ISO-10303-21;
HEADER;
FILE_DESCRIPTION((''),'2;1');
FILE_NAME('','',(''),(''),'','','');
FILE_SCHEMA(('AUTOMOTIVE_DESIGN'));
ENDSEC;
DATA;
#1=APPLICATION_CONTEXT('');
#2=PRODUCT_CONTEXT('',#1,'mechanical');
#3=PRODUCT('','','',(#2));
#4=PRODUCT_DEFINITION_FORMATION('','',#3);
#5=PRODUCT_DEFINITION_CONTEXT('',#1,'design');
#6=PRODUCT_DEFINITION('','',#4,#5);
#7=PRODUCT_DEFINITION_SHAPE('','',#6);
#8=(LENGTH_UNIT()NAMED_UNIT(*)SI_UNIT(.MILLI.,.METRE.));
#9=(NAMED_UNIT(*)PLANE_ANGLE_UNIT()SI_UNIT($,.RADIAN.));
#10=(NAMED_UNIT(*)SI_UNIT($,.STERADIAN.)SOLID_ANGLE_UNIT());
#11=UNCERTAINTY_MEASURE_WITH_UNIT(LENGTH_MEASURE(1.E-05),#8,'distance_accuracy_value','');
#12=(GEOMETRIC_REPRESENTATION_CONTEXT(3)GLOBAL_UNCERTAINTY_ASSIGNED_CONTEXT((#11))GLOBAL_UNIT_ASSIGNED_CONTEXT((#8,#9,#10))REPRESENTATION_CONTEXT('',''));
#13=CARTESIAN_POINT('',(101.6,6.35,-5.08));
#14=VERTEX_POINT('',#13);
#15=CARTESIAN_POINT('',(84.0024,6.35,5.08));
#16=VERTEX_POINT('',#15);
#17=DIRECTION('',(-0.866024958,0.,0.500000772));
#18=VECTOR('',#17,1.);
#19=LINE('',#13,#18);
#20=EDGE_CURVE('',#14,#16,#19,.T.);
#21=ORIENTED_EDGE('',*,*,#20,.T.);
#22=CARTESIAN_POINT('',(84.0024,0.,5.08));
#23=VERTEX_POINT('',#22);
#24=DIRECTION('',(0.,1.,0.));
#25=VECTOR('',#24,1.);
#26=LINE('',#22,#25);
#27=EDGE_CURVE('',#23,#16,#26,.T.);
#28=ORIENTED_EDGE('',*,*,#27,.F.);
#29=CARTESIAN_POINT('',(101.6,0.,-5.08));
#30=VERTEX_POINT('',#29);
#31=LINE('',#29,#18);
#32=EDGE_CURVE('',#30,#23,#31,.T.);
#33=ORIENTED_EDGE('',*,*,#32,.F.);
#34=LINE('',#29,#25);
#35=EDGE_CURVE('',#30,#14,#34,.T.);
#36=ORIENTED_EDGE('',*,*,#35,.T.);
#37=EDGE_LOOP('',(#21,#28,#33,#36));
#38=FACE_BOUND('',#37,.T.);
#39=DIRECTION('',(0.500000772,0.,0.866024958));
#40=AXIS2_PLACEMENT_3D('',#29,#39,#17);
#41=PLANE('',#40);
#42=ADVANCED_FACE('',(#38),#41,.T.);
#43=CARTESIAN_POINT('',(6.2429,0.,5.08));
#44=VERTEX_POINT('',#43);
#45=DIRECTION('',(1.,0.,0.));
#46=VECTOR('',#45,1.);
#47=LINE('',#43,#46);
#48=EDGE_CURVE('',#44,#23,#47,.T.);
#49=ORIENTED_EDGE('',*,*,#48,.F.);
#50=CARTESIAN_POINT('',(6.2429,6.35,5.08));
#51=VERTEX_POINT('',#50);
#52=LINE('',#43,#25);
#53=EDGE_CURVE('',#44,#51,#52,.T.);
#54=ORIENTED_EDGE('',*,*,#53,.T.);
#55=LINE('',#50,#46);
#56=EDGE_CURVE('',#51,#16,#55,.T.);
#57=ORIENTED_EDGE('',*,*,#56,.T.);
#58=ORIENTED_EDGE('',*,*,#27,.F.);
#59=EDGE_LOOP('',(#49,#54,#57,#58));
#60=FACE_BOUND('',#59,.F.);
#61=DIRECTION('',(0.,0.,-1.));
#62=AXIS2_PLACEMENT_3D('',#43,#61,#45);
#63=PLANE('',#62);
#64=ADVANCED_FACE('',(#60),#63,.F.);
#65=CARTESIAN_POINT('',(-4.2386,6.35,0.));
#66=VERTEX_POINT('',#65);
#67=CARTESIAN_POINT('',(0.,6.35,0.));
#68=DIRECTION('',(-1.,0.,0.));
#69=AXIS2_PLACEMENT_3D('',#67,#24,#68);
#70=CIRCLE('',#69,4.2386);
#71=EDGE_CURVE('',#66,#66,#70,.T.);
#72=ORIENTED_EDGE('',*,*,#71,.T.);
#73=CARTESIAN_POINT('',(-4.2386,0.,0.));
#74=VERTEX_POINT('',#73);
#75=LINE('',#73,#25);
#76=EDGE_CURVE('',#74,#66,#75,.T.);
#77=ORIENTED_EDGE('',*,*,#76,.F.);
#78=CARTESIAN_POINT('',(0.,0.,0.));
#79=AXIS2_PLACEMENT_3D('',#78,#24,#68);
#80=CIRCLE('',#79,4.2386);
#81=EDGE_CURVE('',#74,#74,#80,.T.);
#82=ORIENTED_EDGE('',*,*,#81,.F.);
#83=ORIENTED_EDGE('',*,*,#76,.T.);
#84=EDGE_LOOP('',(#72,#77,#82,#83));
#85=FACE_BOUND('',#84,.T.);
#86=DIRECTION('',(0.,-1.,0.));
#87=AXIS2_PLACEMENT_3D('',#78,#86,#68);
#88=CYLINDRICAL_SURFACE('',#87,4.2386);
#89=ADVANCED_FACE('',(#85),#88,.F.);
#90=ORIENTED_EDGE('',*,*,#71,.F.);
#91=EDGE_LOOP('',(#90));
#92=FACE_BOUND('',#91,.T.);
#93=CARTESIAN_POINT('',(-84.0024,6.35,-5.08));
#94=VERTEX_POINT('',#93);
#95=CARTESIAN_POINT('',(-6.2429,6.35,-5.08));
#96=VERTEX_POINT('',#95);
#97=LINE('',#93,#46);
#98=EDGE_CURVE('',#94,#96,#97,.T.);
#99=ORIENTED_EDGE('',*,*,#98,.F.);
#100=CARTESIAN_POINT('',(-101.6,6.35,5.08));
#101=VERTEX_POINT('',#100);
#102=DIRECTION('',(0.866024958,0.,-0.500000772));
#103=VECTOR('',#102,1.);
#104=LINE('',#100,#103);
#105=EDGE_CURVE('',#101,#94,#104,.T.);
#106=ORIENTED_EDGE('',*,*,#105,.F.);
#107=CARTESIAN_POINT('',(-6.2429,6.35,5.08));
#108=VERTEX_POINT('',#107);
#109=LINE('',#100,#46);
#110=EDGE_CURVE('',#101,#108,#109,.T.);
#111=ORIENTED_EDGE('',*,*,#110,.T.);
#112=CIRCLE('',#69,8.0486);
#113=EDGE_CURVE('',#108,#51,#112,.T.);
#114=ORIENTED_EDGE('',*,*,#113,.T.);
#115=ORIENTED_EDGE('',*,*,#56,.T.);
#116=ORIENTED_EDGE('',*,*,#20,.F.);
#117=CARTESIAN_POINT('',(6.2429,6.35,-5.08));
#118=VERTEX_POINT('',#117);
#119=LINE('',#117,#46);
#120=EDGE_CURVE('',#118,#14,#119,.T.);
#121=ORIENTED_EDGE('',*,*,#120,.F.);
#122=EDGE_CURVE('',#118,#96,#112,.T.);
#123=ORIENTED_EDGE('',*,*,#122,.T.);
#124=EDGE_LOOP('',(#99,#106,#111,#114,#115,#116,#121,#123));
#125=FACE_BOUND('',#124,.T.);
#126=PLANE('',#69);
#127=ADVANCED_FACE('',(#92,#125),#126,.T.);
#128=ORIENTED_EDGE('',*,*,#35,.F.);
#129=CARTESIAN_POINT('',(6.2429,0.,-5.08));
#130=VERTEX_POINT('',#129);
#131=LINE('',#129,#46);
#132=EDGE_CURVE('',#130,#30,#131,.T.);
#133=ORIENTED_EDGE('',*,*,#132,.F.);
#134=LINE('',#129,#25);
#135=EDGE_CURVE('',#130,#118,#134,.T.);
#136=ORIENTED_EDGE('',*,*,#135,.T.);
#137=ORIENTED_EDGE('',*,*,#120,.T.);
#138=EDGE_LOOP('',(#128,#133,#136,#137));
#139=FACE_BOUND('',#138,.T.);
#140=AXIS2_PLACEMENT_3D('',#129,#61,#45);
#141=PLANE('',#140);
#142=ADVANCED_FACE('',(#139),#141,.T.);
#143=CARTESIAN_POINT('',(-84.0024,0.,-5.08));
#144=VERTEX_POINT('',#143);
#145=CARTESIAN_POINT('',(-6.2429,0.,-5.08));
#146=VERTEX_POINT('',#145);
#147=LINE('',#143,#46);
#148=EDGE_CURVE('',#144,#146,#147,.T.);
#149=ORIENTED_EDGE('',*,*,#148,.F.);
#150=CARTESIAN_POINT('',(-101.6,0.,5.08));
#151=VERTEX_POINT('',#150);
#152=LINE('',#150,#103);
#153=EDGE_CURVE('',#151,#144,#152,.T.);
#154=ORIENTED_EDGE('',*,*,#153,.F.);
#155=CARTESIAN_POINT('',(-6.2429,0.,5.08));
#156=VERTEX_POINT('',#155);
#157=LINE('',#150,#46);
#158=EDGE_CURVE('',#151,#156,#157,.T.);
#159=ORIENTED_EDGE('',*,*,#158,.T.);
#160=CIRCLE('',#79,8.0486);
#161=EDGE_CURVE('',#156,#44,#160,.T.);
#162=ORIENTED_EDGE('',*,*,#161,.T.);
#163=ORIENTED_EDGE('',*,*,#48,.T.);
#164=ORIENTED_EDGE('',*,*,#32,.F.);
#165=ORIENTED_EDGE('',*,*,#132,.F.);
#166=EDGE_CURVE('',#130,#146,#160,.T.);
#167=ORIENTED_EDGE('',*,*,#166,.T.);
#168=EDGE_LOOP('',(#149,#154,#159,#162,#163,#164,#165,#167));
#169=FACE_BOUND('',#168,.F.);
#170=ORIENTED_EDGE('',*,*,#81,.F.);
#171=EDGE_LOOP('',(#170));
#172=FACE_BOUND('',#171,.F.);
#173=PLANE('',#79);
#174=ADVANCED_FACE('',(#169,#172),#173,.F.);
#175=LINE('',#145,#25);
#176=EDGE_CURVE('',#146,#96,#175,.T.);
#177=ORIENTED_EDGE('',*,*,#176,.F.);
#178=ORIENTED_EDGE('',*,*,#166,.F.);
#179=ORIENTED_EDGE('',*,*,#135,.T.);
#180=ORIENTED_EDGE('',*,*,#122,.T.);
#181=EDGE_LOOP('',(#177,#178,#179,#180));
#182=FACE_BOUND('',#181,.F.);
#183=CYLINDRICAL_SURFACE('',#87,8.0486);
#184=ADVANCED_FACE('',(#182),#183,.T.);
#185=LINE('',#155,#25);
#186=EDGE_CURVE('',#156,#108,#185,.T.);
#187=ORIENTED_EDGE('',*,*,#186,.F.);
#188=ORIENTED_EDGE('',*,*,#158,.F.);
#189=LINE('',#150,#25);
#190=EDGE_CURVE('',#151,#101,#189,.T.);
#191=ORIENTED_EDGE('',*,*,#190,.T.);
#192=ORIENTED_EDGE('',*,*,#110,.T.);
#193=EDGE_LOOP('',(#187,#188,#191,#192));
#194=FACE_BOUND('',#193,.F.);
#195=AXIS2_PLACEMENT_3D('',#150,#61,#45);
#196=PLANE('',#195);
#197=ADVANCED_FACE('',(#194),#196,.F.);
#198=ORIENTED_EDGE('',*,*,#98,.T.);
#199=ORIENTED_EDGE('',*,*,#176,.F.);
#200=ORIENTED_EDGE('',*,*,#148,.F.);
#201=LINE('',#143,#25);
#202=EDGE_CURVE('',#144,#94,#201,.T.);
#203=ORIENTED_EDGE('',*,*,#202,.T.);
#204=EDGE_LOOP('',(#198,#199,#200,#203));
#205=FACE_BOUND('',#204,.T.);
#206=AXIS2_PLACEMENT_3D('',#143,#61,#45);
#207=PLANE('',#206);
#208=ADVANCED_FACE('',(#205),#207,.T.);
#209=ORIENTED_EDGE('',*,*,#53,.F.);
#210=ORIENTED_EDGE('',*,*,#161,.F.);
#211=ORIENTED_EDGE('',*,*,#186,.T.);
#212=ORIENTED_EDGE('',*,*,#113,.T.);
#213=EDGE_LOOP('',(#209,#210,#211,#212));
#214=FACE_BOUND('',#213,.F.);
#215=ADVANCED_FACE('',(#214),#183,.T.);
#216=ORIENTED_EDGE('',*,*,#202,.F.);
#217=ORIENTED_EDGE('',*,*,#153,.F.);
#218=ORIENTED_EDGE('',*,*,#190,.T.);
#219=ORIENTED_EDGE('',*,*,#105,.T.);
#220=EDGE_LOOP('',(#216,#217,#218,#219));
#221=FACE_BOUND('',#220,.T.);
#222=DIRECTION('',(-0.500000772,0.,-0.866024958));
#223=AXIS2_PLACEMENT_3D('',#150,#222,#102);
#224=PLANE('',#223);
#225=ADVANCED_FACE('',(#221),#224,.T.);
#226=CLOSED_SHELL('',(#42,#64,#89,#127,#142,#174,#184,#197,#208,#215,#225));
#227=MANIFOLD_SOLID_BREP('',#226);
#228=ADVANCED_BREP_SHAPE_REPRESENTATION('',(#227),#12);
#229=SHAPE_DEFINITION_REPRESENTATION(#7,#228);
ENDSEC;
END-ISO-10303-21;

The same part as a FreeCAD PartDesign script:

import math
import FreeCAD as App
import Part
import Sketcher
from FreeCAD import Vector
Q = App.Units.Quantity

doc = App.newDocument("Part")
body = doc.addObject("PartDesign::Body", "Body")

sketch1 = body.newObject("Sketcher::SketchObject", "Sketch")
sketch1.AttachmentSupport = (doc.getObject("XZ_Plane"), [""])
sketch1.MapMode = "FlatFace"
sketch1.addGeometry(Part.ArcOfCircle(Part.Circle(Vector(0, 0, 0), Vector(0, 0, 1), 8.0486), math.radians(-140.86391), math.radians(-39.13609)), False)
sketch1.addGeometry(Part.LineSegment(Vector(-6.2429, -5.08, 0), Vector(-84.0024, -5.08, 0)), False)
sketch1.addGeometry(Part.LineSegment(Vector(-84.0024, -5.08, 0), Vector(-101.6, 5.08, 0)), False)
sketch1.addGeometry(Part.LineSegment(Vector(-101.6, 5.08, 0), Vector(-6.2429, 5.08, 0)), False)
sketch1.addGeometry(Part.ArcOfCircle(Part.Circle(Vector(0, 0, 0), Vector(0, 0, 1), 8.0486), math.radians(39.13609), math.radians(140.86391)), False)
sketch1.addGeometry(Part.LineSegment(Vector(6.2429, 5.08, 0), Vector(84.0024, 5.08, 0)), False)
sketch1.addGeometry(Part.LineSegment(Vector(84.0024, 5.08, 0), Vector(101.6, -5.08, 0)), False)
sketch1.addGeometry(Part.LineSegment(Vector(101.6, -5.08, 0), Vector(6.2429, -5.08, 0)), False)
sketch1.addGeometry(Part.Circle(Vector(0, 0, 0), Vector(0, 0, 1), 4.2386), False)
sketch1.addConstraint(Sketcher.Constraint("Coincident", 0, 1, 1, 1))
sketch1.addConstraint(Sketcher.Constraint("Coincident", 1, 2, 2, 1))
sketch1.addConstraint(Sketcher.Constraint("Coincident", 2, 2, 3, 1))
sketch1.addConstraint(Sketcher.Constraint("Coincident", 3, 2, 4, 2))
sketch1.addConstraint(Sketcher.Constraint("Coincident", 4, 1, 5, 1))
sketch1.addConstraint(Sketcher.Constraint("Coincident", 5, 2, 6, 1))
sketch1.addConstraint(Sketcher.Constraint("Coincident", 6, 2, 7, 1))
sketch1.addConstraint(Sketcher.Constraint("Coincident", 7, 2, 0, 2))
sketch1.addConstraint(Sketcher.Constraint("Horizontal", 1))
sketch1.addConstraint(Sketcher.Constraint("Horizontal", 3))
sketch1.addConstraint(Sketcher.Constraint("Horizontal", 5))
sketch1.addConstraint(Sketcher.Constraint("Horizontal", 7))
sketch1.addConstraint(Sketcher.Constraint("Coincident", 0, 3, -1, 1))
sketch1.addConstraint(Sketcher.Constraint("Coincident", 4, 3, -1, 1))
sketch1.addConstraint(Sketcher.Constraint("Coincident", 8, 3, -1, 1))
sketch1.addConstraint(Sketcher.Constraint("Equal", 0, 4))
sketch1.addConstraint(Sketcher.Constraint("Symmetric", 1, 2, 5, 2, -1, 1))
sketch1.addConstraint(Sketcher.Constraint("Symmetric", 2, 2, 6, 2, -1, 1))
sketch1.addConstraint(Sketcher.Constraint("Horizontal", 3, 2, 4, 1))
sketch1.addConstraint(Sketcher.Constraint("Angle", 6, Q("-30 deg")))
sketch1.addConstraint(Sketcher.Constraint("Diameter", 8, Q("8.4772 mm")))
sketch1.addConstraint(Sketcher.Constraint("DistanceX", 2, 2, -1, 1, Q("4 in")))
sketch1.addConstraint(Sketcher.Constraint("Distance", 2, Q("0.8 in")))
sketch1.addConstraint(Sketcher.Constraint("Radius", 0, Q("8.0486 mm")))
pad1 = body.newObject("PartDesign::Pad", "Pad")
pad1.Profile = sketch1
pad1.Length = Q("0.25 in")
pad1.Reversed = True

doc.recompute()
